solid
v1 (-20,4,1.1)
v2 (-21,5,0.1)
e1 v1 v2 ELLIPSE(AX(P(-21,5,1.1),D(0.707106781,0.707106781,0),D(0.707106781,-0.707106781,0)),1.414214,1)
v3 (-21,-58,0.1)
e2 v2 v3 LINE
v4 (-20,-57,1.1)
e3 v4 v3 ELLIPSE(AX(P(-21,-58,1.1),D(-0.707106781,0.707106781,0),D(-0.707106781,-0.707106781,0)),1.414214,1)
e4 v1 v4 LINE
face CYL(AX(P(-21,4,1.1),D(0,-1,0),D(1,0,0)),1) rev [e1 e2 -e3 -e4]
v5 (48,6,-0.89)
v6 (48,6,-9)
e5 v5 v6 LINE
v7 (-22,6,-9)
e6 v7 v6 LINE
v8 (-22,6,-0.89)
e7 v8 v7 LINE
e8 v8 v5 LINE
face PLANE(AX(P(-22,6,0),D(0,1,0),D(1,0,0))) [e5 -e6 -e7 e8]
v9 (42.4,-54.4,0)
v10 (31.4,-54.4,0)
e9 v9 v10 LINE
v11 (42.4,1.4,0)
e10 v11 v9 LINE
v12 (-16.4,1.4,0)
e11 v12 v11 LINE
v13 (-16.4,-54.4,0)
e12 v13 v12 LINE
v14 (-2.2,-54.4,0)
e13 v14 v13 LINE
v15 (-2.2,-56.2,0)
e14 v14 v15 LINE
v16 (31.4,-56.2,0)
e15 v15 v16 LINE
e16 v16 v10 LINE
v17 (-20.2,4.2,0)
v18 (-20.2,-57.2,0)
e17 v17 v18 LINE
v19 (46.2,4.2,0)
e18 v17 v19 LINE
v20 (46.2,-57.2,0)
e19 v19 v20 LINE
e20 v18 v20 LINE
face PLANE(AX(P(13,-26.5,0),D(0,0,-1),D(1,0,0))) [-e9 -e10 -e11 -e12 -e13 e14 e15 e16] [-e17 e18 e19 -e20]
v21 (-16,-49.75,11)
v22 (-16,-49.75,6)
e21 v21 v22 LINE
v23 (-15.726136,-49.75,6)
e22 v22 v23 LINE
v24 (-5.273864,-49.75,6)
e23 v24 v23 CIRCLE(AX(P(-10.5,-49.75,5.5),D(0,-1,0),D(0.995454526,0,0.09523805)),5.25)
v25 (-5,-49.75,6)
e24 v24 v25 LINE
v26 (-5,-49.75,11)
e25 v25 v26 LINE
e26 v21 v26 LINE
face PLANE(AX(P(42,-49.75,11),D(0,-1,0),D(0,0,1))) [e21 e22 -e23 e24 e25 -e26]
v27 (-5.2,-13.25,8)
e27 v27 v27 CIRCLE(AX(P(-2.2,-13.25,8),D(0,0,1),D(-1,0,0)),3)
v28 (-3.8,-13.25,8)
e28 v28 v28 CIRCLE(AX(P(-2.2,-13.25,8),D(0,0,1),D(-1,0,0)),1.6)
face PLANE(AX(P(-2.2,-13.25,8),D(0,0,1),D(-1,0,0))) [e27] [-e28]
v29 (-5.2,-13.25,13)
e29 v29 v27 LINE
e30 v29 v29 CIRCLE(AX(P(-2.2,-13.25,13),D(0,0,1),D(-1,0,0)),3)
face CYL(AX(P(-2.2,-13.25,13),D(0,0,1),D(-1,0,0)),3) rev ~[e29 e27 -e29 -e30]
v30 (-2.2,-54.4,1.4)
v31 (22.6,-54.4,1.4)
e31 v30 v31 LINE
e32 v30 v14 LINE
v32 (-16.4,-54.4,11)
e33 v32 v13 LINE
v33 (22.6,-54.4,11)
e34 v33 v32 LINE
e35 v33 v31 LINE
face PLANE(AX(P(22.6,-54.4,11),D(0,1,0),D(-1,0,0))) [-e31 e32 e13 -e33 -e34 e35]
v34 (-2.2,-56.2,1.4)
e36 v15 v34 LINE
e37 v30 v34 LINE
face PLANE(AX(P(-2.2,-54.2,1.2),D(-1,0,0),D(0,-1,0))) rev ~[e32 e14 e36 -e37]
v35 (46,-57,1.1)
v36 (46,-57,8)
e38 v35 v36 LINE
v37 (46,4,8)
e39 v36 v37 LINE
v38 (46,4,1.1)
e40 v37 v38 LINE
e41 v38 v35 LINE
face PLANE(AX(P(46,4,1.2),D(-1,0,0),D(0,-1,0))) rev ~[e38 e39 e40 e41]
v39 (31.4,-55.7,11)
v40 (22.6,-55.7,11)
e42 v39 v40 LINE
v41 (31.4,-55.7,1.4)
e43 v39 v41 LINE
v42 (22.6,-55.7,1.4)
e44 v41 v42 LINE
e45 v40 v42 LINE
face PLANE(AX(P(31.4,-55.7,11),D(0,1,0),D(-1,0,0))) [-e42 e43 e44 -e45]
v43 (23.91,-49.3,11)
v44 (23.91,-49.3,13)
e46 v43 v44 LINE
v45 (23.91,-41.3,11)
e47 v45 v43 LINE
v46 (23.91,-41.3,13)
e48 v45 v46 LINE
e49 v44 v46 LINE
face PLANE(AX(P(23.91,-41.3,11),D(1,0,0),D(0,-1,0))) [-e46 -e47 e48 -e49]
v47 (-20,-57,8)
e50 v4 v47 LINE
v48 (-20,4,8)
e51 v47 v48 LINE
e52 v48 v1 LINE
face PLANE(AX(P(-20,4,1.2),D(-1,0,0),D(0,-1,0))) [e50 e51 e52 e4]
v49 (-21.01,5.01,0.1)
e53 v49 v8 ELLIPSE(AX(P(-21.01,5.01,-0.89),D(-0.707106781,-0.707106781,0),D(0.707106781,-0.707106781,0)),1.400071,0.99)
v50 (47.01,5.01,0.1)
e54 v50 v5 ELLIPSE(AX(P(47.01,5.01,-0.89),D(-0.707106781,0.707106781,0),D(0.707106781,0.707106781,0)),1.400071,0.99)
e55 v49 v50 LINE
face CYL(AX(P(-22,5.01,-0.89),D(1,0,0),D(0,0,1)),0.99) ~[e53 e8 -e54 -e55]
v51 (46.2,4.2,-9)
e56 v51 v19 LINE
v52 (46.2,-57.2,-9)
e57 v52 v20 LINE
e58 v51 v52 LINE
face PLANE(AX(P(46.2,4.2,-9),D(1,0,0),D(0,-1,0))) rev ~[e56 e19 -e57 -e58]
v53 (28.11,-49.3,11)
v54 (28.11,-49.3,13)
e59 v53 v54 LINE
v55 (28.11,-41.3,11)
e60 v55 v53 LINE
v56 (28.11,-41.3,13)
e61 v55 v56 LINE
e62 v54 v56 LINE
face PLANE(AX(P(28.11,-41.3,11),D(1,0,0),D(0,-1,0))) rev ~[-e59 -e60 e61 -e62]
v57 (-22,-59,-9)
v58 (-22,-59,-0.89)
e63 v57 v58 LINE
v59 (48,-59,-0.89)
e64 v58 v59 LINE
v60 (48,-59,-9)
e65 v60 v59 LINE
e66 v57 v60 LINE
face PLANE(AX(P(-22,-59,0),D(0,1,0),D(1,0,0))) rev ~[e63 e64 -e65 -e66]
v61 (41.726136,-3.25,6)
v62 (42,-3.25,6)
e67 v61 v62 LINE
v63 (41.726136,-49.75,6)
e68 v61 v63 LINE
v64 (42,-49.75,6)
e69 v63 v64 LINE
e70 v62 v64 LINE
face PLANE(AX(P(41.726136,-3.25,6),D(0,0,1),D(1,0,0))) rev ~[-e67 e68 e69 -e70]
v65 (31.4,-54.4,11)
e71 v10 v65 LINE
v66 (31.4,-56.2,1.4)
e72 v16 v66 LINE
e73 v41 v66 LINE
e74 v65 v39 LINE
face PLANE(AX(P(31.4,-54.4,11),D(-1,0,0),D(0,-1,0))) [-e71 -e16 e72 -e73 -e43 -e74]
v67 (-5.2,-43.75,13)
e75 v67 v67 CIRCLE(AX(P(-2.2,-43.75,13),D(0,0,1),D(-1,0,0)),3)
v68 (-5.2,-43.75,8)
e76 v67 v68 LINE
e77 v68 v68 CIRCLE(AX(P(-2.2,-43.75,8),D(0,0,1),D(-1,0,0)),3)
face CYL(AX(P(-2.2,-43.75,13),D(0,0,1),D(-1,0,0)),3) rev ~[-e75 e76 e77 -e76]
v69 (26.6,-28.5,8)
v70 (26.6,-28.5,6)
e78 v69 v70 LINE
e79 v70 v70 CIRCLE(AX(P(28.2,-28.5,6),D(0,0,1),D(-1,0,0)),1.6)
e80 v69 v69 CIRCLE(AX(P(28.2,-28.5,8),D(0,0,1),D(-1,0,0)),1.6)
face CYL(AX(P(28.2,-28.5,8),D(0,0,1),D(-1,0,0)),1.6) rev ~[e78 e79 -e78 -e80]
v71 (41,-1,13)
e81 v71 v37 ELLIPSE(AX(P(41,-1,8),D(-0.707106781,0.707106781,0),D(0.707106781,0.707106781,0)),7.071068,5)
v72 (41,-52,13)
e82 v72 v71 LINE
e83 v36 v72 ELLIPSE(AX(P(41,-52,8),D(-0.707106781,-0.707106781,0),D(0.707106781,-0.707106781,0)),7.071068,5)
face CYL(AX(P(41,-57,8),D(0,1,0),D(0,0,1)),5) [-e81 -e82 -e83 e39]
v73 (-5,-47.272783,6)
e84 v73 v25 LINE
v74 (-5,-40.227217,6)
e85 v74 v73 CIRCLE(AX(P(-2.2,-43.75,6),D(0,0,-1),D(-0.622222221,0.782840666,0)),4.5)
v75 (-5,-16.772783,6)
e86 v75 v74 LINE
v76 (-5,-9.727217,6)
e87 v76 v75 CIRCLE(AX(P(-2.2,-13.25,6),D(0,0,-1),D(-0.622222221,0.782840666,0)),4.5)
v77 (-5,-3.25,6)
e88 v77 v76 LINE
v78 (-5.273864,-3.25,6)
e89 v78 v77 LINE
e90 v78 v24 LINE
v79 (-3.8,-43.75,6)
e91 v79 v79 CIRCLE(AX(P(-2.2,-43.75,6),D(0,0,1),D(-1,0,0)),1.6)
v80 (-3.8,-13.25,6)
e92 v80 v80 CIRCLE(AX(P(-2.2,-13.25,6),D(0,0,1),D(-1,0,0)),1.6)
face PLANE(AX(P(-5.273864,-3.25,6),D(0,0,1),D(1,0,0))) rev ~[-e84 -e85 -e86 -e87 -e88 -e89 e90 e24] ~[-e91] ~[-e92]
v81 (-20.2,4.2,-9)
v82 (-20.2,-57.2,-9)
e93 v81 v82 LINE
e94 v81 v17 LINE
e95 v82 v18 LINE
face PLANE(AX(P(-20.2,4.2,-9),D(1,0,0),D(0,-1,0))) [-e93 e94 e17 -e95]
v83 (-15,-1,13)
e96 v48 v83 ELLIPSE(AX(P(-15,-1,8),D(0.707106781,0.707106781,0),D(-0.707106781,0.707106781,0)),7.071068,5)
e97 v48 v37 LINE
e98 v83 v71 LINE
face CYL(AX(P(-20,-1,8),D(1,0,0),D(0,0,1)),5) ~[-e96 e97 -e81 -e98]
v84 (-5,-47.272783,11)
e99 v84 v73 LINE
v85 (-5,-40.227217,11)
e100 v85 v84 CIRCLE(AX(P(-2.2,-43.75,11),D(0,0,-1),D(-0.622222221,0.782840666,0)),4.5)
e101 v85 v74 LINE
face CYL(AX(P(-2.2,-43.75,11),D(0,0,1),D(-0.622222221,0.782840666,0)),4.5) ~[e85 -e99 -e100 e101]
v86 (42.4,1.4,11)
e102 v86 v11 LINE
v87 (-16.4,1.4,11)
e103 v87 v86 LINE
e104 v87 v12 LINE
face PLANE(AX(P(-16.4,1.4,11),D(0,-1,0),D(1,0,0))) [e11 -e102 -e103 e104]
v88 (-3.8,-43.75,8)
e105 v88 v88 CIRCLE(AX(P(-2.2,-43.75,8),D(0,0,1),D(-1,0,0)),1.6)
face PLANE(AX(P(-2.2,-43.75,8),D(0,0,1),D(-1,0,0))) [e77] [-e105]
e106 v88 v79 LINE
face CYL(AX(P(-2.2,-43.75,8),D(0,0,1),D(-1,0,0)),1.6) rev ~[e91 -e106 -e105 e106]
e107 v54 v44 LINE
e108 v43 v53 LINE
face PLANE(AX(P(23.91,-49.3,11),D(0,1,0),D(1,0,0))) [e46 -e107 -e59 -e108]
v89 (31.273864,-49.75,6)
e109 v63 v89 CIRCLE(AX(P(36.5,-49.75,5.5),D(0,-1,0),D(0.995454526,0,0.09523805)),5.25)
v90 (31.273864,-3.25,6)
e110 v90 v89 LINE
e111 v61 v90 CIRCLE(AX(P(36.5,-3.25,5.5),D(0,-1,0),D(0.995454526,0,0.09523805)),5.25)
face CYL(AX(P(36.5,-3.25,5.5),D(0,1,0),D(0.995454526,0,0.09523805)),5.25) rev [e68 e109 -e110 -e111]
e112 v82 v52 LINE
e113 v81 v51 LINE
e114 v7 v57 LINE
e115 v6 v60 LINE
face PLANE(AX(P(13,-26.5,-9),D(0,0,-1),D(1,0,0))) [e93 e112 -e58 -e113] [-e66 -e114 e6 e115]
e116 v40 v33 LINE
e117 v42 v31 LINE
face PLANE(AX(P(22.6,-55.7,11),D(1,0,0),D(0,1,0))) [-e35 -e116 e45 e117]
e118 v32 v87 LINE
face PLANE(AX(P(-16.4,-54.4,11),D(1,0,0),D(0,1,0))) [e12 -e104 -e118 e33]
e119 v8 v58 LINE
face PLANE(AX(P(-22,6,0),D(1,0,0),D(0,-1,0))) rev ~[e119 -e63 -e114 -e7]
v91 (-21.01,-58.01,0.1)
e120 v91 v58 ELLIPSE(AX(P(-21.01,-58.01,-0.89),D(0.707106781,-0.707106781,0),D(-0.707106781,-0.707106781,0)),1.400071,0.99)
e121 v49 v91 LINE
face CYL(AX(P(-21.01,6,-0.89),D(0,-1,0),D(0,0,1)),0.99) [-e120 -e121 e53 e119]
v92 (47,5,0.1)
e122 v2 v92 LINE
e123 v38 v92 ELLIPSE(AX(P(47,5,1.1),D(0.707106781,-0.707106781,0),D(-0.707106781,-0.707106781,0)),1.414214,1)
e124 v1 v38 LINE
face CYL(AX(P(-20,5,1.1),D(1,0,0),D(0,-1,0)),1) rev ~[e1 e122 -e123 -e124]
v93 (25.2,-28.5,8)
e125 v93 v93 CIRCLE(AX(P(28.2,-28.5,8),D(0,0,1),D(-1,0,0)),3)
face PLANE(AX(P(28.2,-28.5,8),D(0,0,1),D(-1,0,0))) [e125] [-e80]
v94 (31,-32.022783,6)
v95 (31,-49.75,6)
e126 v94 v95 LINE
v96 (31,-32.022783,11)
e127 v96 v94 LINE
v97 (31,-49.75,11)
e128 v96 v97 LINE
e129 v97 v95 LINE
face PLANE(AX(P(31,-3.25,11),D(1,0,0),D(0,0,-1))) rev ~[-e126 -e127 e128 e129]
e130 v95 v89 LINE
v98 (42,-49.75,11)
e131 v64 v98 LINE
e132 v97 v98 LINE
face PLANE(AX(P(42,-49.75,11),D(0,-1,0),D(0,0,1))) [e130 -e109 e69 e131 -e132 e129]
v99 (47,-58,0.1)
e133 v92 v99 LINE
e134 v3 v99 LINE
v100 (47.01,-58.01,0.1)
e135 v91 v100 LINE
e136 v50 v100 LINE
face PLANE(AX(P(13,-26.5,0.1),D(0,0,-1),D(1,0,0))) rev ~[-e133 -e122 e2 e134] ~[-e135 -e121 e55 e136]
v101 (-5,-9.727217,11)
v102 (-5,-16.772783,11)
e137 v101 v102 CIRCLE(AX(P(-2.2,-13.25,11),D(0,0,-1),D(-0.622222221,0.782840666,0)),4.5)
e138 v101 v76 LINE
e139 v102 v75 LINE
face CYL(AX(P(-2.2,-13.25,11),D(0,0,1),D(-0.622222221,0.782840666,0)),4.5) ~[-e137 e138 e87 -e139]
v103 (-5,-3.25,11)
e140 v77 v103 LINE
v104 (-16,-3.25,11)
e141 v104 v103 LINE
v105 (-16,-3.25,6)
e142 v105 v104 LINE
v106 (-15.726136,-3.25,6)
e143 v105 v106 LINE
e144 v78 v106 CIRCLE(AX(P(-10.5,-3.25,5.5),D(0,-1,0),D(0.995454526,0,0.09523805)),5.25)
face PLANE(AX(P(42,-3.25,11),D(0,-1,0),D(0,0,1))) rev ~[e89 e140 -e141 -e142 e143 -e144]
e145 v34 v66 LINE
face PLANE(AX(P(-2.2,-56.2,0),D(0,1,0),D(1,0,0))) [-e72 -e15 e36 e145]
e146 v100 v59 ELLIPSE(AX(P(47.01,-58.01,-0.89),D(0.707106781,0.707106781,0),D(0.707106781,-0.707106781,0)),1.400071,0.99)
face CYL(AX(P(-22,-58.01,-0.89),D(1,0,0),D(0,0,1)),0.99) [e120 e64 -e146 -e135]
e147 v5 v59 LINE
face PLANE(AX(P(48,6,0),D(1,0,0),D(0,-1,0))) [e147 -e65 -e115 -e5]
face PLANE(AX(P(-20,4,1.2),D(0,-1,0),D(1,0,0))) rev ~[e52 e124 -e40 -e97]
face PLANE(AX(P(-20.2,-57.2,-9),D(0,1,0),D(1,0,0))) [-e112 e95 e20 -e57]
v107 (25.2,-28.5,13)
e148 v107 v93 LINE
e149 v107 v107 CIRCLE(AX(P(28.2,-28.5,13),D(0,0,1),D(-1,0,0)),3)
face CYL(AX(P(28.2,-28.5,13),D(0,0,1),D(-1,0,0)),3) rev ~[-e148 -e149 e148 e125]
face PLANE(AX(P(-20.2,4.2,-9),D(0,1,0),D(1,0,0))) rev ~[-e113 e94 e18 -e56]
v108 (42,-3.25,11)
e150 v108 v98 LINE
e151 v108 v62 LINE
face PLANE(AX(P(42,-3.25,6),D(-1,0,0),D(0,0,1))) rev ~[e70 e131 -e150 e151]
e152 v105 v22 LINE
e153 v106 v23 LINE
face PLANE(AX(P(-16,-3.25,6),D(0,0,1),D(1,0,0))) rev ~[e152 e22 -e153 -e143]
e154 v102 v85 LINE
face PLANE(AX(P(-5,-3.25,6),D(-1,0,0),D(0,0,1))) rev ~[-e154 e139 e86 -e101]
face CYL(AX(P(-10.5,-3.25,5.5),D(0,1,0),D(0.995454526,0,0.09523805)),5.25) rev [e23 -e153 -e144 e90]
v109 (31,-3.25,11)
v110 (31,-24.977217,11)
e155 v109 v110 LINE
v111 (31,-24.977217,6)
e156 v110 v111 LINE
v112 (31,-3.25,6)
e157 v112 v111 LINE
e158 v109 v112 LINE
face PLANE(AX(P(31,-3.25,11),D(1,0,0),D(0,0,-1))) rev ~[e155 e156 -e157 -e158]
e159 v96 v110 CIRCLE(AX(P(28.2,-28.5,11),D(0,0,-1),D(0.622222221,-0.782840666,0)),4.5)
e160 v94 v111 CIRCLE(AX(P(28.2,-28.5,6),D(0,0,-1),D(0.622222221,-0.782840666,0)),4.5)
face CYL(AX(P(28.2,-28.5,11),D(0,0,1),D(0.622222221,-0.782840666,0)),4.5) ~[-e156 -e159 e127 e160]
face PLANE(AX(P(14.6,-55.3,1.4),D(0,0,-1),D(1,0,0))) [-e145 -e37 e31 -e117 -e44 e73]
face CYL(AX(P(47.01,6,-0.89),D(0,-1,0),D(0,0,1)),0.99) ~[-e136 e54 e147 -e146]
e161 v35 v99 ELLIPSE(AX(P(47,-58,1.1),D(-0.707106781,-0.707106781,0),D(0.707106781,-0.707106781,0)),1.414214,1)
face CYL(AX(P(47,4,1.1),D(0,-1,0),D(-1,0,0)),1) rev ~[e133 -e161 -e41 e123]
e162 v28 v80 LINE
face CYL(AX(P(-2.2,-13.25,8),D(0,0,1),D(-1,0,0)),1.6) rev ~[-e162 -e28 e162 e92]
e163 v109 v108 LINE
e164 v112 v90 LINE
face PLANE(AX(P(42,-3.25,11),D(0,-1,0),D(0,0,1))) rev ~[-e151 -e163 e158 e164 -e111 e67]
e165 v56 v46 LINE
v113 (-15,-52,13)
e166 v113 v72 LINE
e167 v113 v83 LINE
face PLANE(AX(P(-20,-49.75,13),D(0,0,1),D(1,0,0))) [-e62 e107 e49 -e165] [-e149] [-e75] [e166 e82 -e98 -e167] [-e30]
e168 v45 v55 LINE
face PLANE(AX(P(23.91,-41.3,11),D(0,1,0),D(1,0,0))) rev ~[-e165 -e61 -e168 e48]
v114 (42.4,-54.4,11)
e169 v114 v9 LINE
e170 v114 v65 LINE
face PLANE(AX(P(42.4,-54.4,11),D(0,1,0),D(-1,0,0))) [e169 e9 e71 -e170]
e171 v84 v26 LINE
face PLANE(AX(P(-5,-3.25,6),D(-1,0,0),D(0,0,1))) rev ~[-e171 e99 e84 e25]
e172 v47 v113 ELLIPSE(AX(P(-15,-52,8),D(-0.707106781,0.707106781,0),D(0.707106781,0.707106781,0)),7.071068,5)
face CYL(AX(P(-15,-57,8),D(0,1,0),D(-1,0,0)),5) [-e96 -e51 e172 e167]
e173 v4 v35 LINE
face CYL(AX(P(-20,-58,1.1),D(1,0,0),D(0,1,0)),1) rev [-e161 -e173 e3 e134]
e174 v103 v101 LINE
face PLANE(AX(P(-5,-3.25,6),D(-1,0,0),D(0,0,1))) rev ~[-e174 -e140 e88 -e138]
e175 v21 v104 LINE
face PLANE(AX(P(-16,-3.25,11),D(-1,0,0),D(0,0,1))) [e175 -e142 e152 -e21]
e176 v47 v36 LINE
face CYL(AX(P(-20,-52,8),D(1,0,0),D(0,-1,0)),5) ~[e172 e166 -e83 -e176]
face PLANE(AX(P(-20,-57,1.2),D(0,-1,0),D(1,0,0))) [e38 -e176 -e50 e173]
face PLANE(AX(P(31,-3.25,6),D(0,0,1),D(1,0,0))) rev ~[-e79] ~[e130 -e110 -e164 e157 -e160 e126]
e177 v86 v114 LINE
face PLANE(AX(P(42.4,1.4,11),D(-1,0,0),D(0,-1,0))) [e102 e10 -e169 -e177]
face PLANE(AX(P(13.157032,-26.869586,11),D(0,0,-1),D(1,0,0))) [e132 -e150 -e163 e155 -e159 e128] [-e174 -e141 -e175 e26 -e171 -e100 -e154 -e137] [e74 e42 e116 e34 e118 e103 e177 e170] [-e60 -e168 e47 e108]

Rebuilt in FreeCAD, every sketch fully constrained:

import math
import FreeCAD as App
import Part
import Sketcher

V = App.Vector


def edges_at(feature, points):
    """Names of the edges that pass closest to the given points."""
    edges = feature.Shape.Edges
    near = lambda p: min(range(len(edges)), key=lambda i: edges[i].distToShape(Part.Vertex(*p))[0])
    return sorted({f"Edge{near(p) + 1}" for p in points})


def add_polygon(sketch, points):
    """Adds a closed chain of lines whose ends are joined by coincident constraints."""
    first, n = sketch.GeometryCount, len(points)
    for a, b in zip(points, points[1:] + points[:1]):
        sketch.addGeometry(Part.LineSegment(App.Vector(*a, 0), App.Vector(*b, 0)), False)
    for i in range(n):
        sketch.addConstraint(Sketcher.Constraint("Coincident", first + i, 2, first + (i + 1) % n, 1))

doc = App.newDocument("Part")
body = doc.addObject("PartDesign::Body", "Body")

# Sketch on XZ plane
sketch1 = body.newObject("Sketcher::SketchObject", "Sketch")
sketch1.AttachmentSupport = (doc.getObject("XZ_Plane"), [""])
sketch1.MapMode = "FlatFace"
sketch1.AttachmentOffset = App.Placement(V(0, 0, 3.25), App.Rotation())
sketch1.addGeometry(Part.LineSegment(V(-5, 11, 0), V(-16, 11, 0)), False)
sketch1.addGeometry(Part.LineSegment(V(-16, 11, 0), V(-16, 6, 0)), False)
sketch1.addGeometry(Part.LineSegment(V(-16, 6, 0), V(-15.73, 6, 0)), False)
sketch1.addGeometry(Part.ArcOfCircle(Part.Circle(V(-10.5, 5.5, 0), V(0, 0, 1), 5.25), math.radians(5), math.radians(175)), False)
sketch1.addGeometry(Part.LineSegment(V(-5.27, 6, 0), V(-5, 6, 0)), False)
sketch1.addGeometry(Part.LineSegment(V(-5, 6, 0), V(-5, 11, 0)), False)
sketch1.addConstraint(Sketcher.Constraint("Coincident", 0, 2, 1, 1))
sketch1.addConstraint(Sketcher.Constraint("Coincident", 1, 2, 2, 1))
sketch1.addConstraint(Sketcher.Constraint("Coincident", 2, 2, 3, 2))
sketch1.addConstraint(Sketcher.Constraint("Coincident", 3, 1, 4, 1))
sketch1.addConstraint(Sketcher.Constraint("Coincident", 4, 2, 5, 1))
sketch1.addConstraint(Sketcher.Constraint("Coincident", 5, 2, 0, 1))
sketch1.addConstraint(Sketcher.Constraint("Horizontal", 0))
sketch1.addConstraint(Sketcher.Constraint("Vertical", 1))
sketch1.addConstraint(Sketcher.Constraint("Horizontal", 2))
sketch1.addConstraint(Sketcher.Constraint("Horizontal", 4))
sketch1.addConstraint(Sketcher.Constraint("Vertical", 5))
sketch1.addConstraint(Sketcher.Constraint("Horizontal", 2, 2, 3, 1))
sketch1.addConstraint(Sketcher.Constraint("Equal", 2, 4))
sketch1.addConstraint(Sketcher.Constraint("DistanceX", 0, 2, 0, 1, 11.0))
sketch1.addConstraint(Sketcher.Constraint("DistanceY", 1, 2, 1, 1, 5.0))
sketch1.addConstraint(Sketcher.Constraint("Radius", 3, 5.25))
sketch1.addConstraint(Sketcher.Constraint("DistanceX", 0, 2, -1, 1, 16.0))
sketch1.addConstraint(Sketcher.Constraint("DistanceY", -1, 1, 0, 2, 11.0))
sketch1.addConstraint(Sketcher.Constraint("DistanceY", -1, 1, 3, 3, 5.5))
pad1 = body.newObject("PartDesign::Pad", "Pad")
pad1.Profile = sketch1
pad1.Length = 46.5

# Sketch on XZ plane
sketch2 = body.newObject("Sketcher::SketchObject", "Sketch001")
sketch2.AttachmentSupport = (doc.getObject("XZ_Plane"), [""])
sketch2.MapMode = "FlatFace"
sketch2.AttachmentOffset = App.Placement(V(0, 0, 3.25), App.Rotation())
sketch2.addGeometry(Part.LineSegment(V(31, 11, 0), V(31, 6, 0)), False)
sketch2.addGeometry(Part.LineSegment(V(31, 6, 0), V(31.27, 6, 0)), False)
sketch2.addGeometry(Part.ArcOfCircle(Part.Circle(V(36.5, 5.5, 0), V(0, 0, 1), 5.25), math.radians(5), math.radians(175)), False)
sketch2.addGeometry(Part.LineSegment(V(41.73, 6, 0), V(42, 6, 0)), False)
sketch2.addGeometry(Part.LineSegment(V(42, 6, 0), V(42, 13, 0)), False)
sketch2.addGeometry(Part.LineSegment(V(42, 13, 0), V(-16, 13, 0)), False)
sketch2.addGeometry(Part.LineSegment(V(-16, 13, 0), V(-16, 11, 0)), False)
sketch2.addGeometry(Part.LineSegment(V(-16, 11, 0), V(31, 11, 0)), False)
sketch2.addConstraint(Sketcher.Constraint("Coincident", 0, 2, 1, 1))
sketch2.addConstraint(Sketcher.Constraint("Coincident", 1, 2, 2, 2))
sketch2.addConstraint(Sketcher.Constraint("Coincident", 2, 1, 3, 1))
sketch2.addConstraint(Sketcher.Constraint("Coincident", 3, 2, 4, 1))
sketch2.addConstraint(Sketcher.Constraint("Coincident", 4, 2, 5, 1))
sketch2.addConstraint(Sketcher.Constraint("Coincident", 5, 2, 6, 1))
sketch2.addConstraint(Sketcher.Constraint("Coincident", 6, 2, 7, 1))
sketch2.addConstraint(Sketcher.Constraint("Coincident", 7, 2, 0, 1))
sketch2.addConstraint(Sketcher.Constraint("Vertical", 0))
sketch2.addConstraint(Sketcher.Constraint("Horizontal", 1))
sketch2.addConstraint(Sketcher.Constraint("Horizontal", 3))
sketch2.addConstraint(Sketcher.Constraint("Vertical", 4))
sketch2.addConstraint(Sketcher.Constraint("Horizontal", 5))
sketch2.addConstraint(Sketcher.Constraint("Vertical", 6))
sketch2.addConstraint(Sketcher.Constraint("Horizontal", 7))
sketch2.addConstraint(Sketcher.Constraint("Horizontal", 1, 2, 2, 1))
sketch2.addConstraint(Sketcher.Constraint("Equal", 1, 3))
sketch2.addConstraint(Sketcher.Constraint("DistanceX", 5, 2, 5, 1, 58.0))
sketch2.addConstraint(Sketcher.Constraint("DistanceX", 7, 1, 7, 2, 47.0))
sketch2.addConstraint(Sketcher.Constraint("DistanceY", 0, 2, 0, 1, 5.0))
sketch2.addConstraint(Sketcher.Constraint("DistanceY", 4, 1, 4, 2, 7.0))
sketch2.addConstraint(Sketcher.Constraint("Radius", 2, 5.25))
sketch2.addConstraint(Sketcher.Constraint("DistanceX", -1, 1, 0, 2, 31.0))
sketch2.addConstraint(Sketcher.Constraint("DistanceY", -1, 1, 0, 2, 6.0))
sketch2.addConstraint(Sketcher.Constraint("DistanceY", -1, 1, 2, 3, 5.5))
pad2 = body.newObject("PartDesign::Pad", "Pad001")
pad2.Profile = sketch2
pad2.Length = 46.5

# Sketch on YZ plane
sketch3 = body.newObject("Sketcher::SketchObject", "Sketch002")
sketch3.AttachmentSupport = (doc.getObject("YZ_Plane"), [""])
sketch3.MapMode = "FlatFace"
sketch3.AttachmentOffset = App.Placement(V(0, 0, 42), App.Rotation())
add_polygon(sketch3, [(-49.8, 11), (-3.2, 11), (-3.2, 13), (-49.8, 13)])  # lines 0-3
sketch3.addConstraint(Sketcher.Constraint("Horizontal", 0))
sketch3.addConstraint(Sketcher.Constraint("Vertical", 1))
sketch3.addConstraint(Sketcher.Constraint("Horizontal", 2))
sketch3.addConstraint(Sketcher.Constraint("Vertical", 3))
sketch3.addConstraint(Sketcher.Constraint("DistanceY", 1, 1, 1, 2, 2.0))
sketch3.addConstraint(Sketcher.Constraint("DistanceX", 0, 1, 0, 2, 46.5))
sketch3.addConstraint(Sketcher.Constraint("DistanceY", -1, 1, 0, 2, 11.0))
sketch3.addConstraint(Sketcher.Constraint("DistanceX", 0, 2, -1, 1, 3.25))
pad3 = body.newObject("PartDesign::Pad", "Pad002")
pad3.Profile = sketch3
pad3.Length = 62
pad3.Reversed = True

# Sketch on YZ plane
sketch4 = body.newObject("Sketcher::SketchObject", "Sketch003")
sketch4.AttachmentSupport = (doc.getObject("YZ_Plane"), [""])
sketch4.MapMode = "FlatFace"
sketch4.AttachmentOffset = App.Placement(V(0, 0, 42), App.Rotation())
add_polygon(sketch4, [(-49.8, 11), (-3.2, 11), (-3.2, 13), (-49.8, 13)])  # lines 0-3
sketch4.addConstraint(Sketcher.Constraint("Horizontal", 0))
sketch4.addConstraint(Sketcher.Constraint("Vertical", 1))
sketch4.addConstraint(Sketcher.Constraint("Horizontal", 2))
sketch4.addConstraint(Sketcher.Constraint("Vertical", 3))
sketch4.addConstraint(Sketcher.Constraint("DistanceY", 1, 1, 1, 2, 2.0))
sketch4.addConstraint(Sketcher.Constraint("DistanceX", 0, 1, 0, 2, 46.5))
sketch4.addConstraint(Sketcher.Constraint("DistanceY", -1, 1, 0, 2, 11.0))
sketch4.addConstraint(Sketcher.Constraint("DistanceX", 0, 2, -1, 1, 3.25))
pad4 = body.newObject("PartDesign::Pad", "Pad003")
pad4.Profile = sketch4
pad4.Length = 4

# Sketch on XZ plane
sketch5 = body.newObject("Sketcher::SketchObject", "Sketch004")
sketch5.AttachmentSupport = (doc.getObject("XZ_Plane"), [""])
sketch5.MapMode = "FlatFace"
sketch5.AttachmentOffset = App.Placement(V(0, 0, 3.25), App.Rotation())
add_polygon(sketch5, [(-20, 11), (-20, 13), (46, 13), (46, 11)])  # lines 0-3
sketch5.addConstraint(Sketcher.Constraint("Vertical", 0))
sketch5.addConstraint(Sketcher.Constraint("Horizontal", 1))
sketch5.addConstraint(Sketcher.Constraint("Vertical", 2))
sketch5.addConstraint(Sketcher.Constraint("Horizontal", 3))
sketch5.addConstraint(Sketcher.Constraint("DistanceX", 1, 1, 1, 2, 66.0))
sketch5.addConstraint(Sketcher.Constraint("DistanceY", 0, 1, 0, 2, 2.0))
sketch5.addConstraint(Sketcher.Constraint("DistanceX", 0, 2, -1, 1, 20.0))
sketch5.addConstraint(Sketcher.Constraint("DistanceY", -1, 1, 0, 2, 13.0))
pad5 = body.newObject("PartDesign::Pad", "Pad004")
pad5.Profile = sketch5
pad5.Length = 7.25
pad5.Reversed = True

# Sketch on XZ plane
sketch6 = body.newObject("Sketcher::SketchObject", "Sketch005")
sketch6.AttachmentSupport = (doc.getObject("XZ_Plane"), [""])
sketch6.MapMode = "FlatFace"
sketch6.AttachmentOffset = App.Placement(V(0, 0, 49.75), App.Rotation())
add_polygon(sketch6, [(-20, 13), (-20, 11), (46, 11), (46, 13)])  # lines 0-3
sketch6.addConstraint(Sketcher.Constraint("Vertical", 0))
sketch6.addConstraint(Sketcher.Constraint("Horizontal", 1))
sketch6.addConstraint(Sketcher.Constraint("Vertical", 2))
sketch6.addConstraint(Sketcher.Constraint("Horizontal", 3))
sketch6.addConstraint(Sketcher.Constraint("DistanceX", 1, 1, 1, 2, 66.0))
sketch6.addConstraint(Sketcher.Constraint("DistanceY", 0, 2, 0, 1, 2.0))
sketch6.addConstraint(Sketcher.Constraint("DistanceX", 0, 2, -1, 1, 20.0))
sketch6.addConstraint(Sketcher.Constraint("DistanceY", -1, 1, 0, 2, 11.0))
pad6 = body.newObject("PartDesign::Pad", "Pad005")
pad6.Profile = sketch6
pad6.Length = 7.25

# Sketch on XY plane
sketch7 = body.newObject("Sketcher::SketchObject", "Sketch006")
sketch7.AttachmentSupport = (doc.getObject("XY_Plane"), [""])
sketch7.MapMode = "FlatFace"
sketch7.AttachmentOffset = App.Placement(V(0, 0, 11), App.Rotation())
add_polygon(sketch7, [(-20, -57), (-20, 4), (46, 4), (46, -57)])  # lines 0-3
add_polygon(sketch7, [(42.2, -54.2), (42.2, 1.2), (-16.2, 1.2), (-16.2, -54.2), (22.8, -54.2), (22.8, -55.5), (31.2, -55.5), (31.2, -54.2)])  # lines 4-11
sketch7.addConstraint(Sketcher.Constraint("Vertical", 0))
sketch7.addConstraint(Sketcher.Constraint("Horizontal", 1))
sketch7.addConstraint(Sketcher.Constraint("Vertical", 2))
sketch7.addConstraint(Sketcher.Constraint("Horizontal", 3))
sketch7.addConstraint(Sketcher.Constraint("Vertical", 4))
sketch7.addConstraint(Sketcher.Constraint("Horizontal", 5))
sketch7.addConstraint(Sketcher.Constraint("Vertical", 6))
sketch7.addConstraint(Sketcher.Constraint("Horizontal", 7))
sketch7.addConstraint(Sketcher.Constraint("Vertical", 8))
sketch7.addConstraint(Sketcher.Constraint("Horizontal", 9))
sketch7.addConstraint(Sketcher.Constraint("Vertical", 10))
sketch7.addConstraint(Sketcher.Constraint("Horizontal", 11))
sketch7.addConstraint(Sketcher.Constraint("Horizontal", 7, 2, 10, 2))
sketch7.addConstraint(Sketcher.Constraint("DistanceX", 1, 1, 1, 2, 66.0))
sketch7.addConstraint(Sketcher.Constraint("DistanceX", 7, 1, 7, 2, 39.0))
sketch7.addConstraint(Sketcher.Constraint("DistanceX", 11, 1, 11, 2, 11.0))
sketch7.addConstraint(Sketcher.Constraint("DistanceY", 0, 1, 0, 2, 61.0))
sketch7.addConstraint(Sketcher.Constraint("DistanceX", 5, 2, 5, 1, 58.4))
sketch7.addConstraint(Sketcher.Constraint("DistanceY", 4, 1, 4, 2, 55.4))
sketch7.addConstraint(Sketcher.Constraint("DistanceY", 8, 2, 8, 1, 1.3))
sketch7.addConstraint(Sketcher.Constraint("DistanceX", 0, 2, -1, 1, 20.0))
sketch7.addConstraint(Sketcher.Constraint("DistanceY", -1, 1, 0, 2, 4.0))
sketch7.addConstraint(Sketcher.Constraint("DistanceX", -1, 1, 4, 2, 42.2))
sketch7.addConstraint(Sketcher.Constraint("DistanceY", -1, 1, 4, 2, 1.2))
pad7 = body.newObject("PartDesign::Pad", "Pad006")
pad7.Profile = sketch7
pad7.Length = 9.8
pad7.Reversed = True

# Sketch on XY plane
sketch8 = body.newObject("Sketcher::SketchObject", "Sketch007")
sketch8.AttachmentSupport = (doc.getObject("XY_Plane"), [""])
sketch8.MapMode = "FlatFace"
sketch8.AttachmentOffset = App.Placement(V(0, 0, 1.2), App.Rotation())
add_polygon(sketch8, [(-20, -57), (-20, 4), (46, 4), (46, -57)])  # lines 0-3
add_polygon(sketch8, [(-2.2, -54.2), (-2.2, -56.2), (31.2, -56.2), (31.2, -54.2), (42.2, -54.2), (42.2, 1.2), (-16.2, 1.2), (-16.2, -54.2)])  # lines 4-11
sketch8.addConstraint(Sketcher.Constraint("Vertical", 0))
sketch8.addConstraint(Sketcher.Constraint("Horizontal", 1))
sketch8.addConstraint(Sketcher.Constraint("Vertical", 2))
sketch8.addConstraint(Sketcher.Constraint("Horizontal", 3))
sketch8.addConstraint(Sketcher.Constraint("Vertical", 4))
sketch8.addConstraint(Sketcher.Constraint("Horizontal", 5))
sketch8.addConstraint(Sketcher.Constraint("Vertical", 6))
sketch8.addConstraint(Sketcher.Constraint("Horizontal", 7))
sketch8.addConstraint(Sketcher.Constraint("Vertical", 8))
sketch8.addConstraint(Sketcher.Constraint("Horizontal", 9))
sketch8.addConstraint(Sketcher.Constraint("Vertical", 10))
sketch8.addConstraint(Sketcher.Constraint("Horizontal", 11))
sketch8.addConstraint(Sketcher.Constraint("Horizontal", 7, 2, 10, 2))
sketch8.addConstraint(Sketcher.Constraint("DistanceX", 1, 1, 1, 2, 66.0))
sketch8.addConstraint(Sketcher.Constraint("DistanceX", 7, 1, 7, 2, 11.0))
sketch8.addConstraint(Sketcher.Constraint("DistanceX", 11, 1, 11, 2, 14.0))
sketch8.addConstraint(Sketcher.Constraint("DistanceY", 0, 1, 0, 2, 61.0))
sketch8.addConstraint(Sketcher.Constraint("DistanceY", 4, 2, 4, 1, 2.0))
sketch8.addConstraint(Sketcher.Constraint("DistanceX", 5, 1, 5, 2, 33.4))
sketch8.addConstraint(Sketcher.Constraint("DistanceY", 8, 1, 8, 2, 55.4))
sketch8.addConstraint(Sketcher.Constraint("DistanceX", 0, 2, -1, 1, 20.0))
sketch8.addConstraint(Sketcher.Constraint("DistanceY", -1, 1, 0, 2, 4.0))
sketch8.addConstraint(Sketcher.Constraint("DistanceX", 4, 2, -1, 1, 2.2))
sketch8.addConstraint(Sketcher.Constraint("DistanceY", 4, 2, -1, 1, 56.2))
pad8 = body.newObject("PartDesign::Pad", "Pad007")
pad8.Profile = sketch8
pad8.Length = 1.2
pad8.Reversed = True

# Sketch on XY plane
sketch9 = body.newObject("Sketcher::SketchObject", "Sketch008")
sketch9.AttachmentSupport = (doc.getObject("XY_Plane"), [""])
sketch9.MapMode = "FlatFace"
sketch9.AttachmentOffset = App.Placement(V(0, 0, 11), App.Rotation())
sketch9.addGeometry(Part.ArcOfCircle(Part.Circle(V(-2.2, -43.8, 0), V(0, 0, 1), 4.5), math.radians(-128), math.radians(128)), False)
sketch9.addGeometry(Part.LineSegment(V(-5, -47.3, 0), V(-5, -40.2, 0)), False)
sketch9.addGeometry(Part.ArcOfCircle(Part.Circle(V(-2.2, -13.2, 0), V(0, 0, 1), 4.5), math.radians(-128), math.radians(128)), False)
sketch9.addGeometry(Part.LineSegment(V(-5, -16.8, 0), V(-5, -9.7, 0)), False)
sketch9.addGeometry(Part.ArcOfCircle(Part.Circle(V(28.2, -28.5, 0), V(0, 0, 1), 4.5), math.radians(52), math.radians(308)), False)
sketch9.addGeometry(Part.LineSegment(V(31, -25, 0), V(31, -32, 0)), False)
sketch9.addConstraint(Sketcher.Constraint("Coincident", 0, 1, 1, 1))
sketch9.addConstraint(Sketcher.Constraint("Coincident", 1, 2, 0, 2))
sketch9.addConstraint(Sketcher.Constraint("Coincident", 2, 1, 3, 1))
sketch9.addConstraint(Sketcher.Constraint("Coincident", 3, 2, 2, 2))
sketch9.addConstraint(Sketcher.Constraint("Coincident", 4, 1, 5, 1))
sketch9.addConstraint(Sketcher.Constraint("Coincident", 5, 2, 4, 2))
sketch9.addConstraint(Sketcher.Constraint("Vertical", 1))
sketch9.addConstraint(Sketcher.Constraint("Vertical", 3))
sketch9.addConstraint(Sketcher.Constraint("Vertical", 5))
sketch9.addConstraint(Sketcher.Constraint("Equal", 0, 2))
sketch9.addConstraint(Sketcher.Constraint("Equal", 2, 4))
sketch9.addConstraint(Sketcher.Constraint("Vertical", 0, 3, 2, 3))
sketch9.addConstraint(Sketcher.Constraint("Vertical", 1, 2, 2, 1))
sketch9.addConstraint(Sketcher.Constraint("Equal", 3, 5))
sketch9.addConstraint(Sketcher.Constraint("Radius", 0, 4.5))
sketch9.addConstraint(Sketcher.Constraint("DistanceX", 0, 1, -1, 1, 5.0))
sketch9.addConstraint(Sketcher.Constraint("DistanceX", -1, 1, 4, 1, 31.0))
sketch9.addConstraint(Sketcher.Constraint("DistanceX", 0, 3, -1, 1, 2.2))
sketch9.addConstraint(Sketcher.Constraint("DistanceY", 4, 3, -1, 1, 28.5))
sketch9.addConstraint(Sketcher.Constraint("DistanceY", 0, 3, 2, 3, 30.5))
sketch9.addConstraint(Sketcher.Constraint("DistanceY", 0, 3, -1, 1, 43.75))
pad9 = body.newObject("PartDesign::Pad", "Pad008")
pad9.Profile = sketch9
pad9.Length = 5
pad9.Reversed = True

# Sketch on XY plane
sketch10 = body.newObject("Sketcher::SketchObject", "Sketch009")
sketch10.AttachmentSupport = (doc.getObject("XY_Plane"), [""])
sketch10.MapMode = "FlatFace"
sketch10.AttachmentOffset = App.Placement(V(0, 0, 13), App.Rotation())
sketch10.addGeometry(Part.Circle(V(-2.2, -43.8, 0), V(0, 0, 1), 2.8), False)
sketch10.addGeometry(Part.Circle(V(-2.2, -13.2, 0), V(0, 0, 1), 2.8), False)
sketch10.addGeometry(Part.Circle(V(28.2, -28.5, 0), V(0, 0, 1), 2.8), False)
sketch10.addConstraint(Sketcher.Constraint("Equal", 0, 1))
sketch10.addConstraint(Sketcher.Constraint("Equal", 1, 2))
sketch10.addConstraint(Sketcher.Constraint("Vertical", 0, 3, 1, 3))
sketch10.addConstraint(Sketcher.Constraint("Diameter", 0, 5.6))
sketch10.addConstraint(Sketcher.Constraint("DistanceX", 0, 3, -1, 1, 2.2))
sketch10.addConstraint(Sketcher.Constraint("DistanceX", -1, 1, 2, 3, 28.2))
sketch10.addConstraint(Sketcher.Constraint("DistanceY", 2, 3, -1, 1, 28.5))
sketch10.addConstraint(Sketcher.Constraint("DistanceY", 0, 3, 1, 3, 30.5))
sketch10.addConstraint(Sketcher.Constraint("DistanceY", 0, 3, -1, 1, 43.75))
pocket1 = body.newObject("PartDesign::Pocket", "Pocket")
pocket1.Profile = sketch10
pocket1.Length = 5

# Sketch on XY plane
sketch11 = body.newObject("Sketcher::SketchObject", "Sketch010")
sketch11.AttachmentSupport = (doc.getObject("XY_Plane"), [""])
sketch11.MapMode = "FlatFace"
sketch11.AttachmentOffset = App.Placement(V(0, 0, 13), App.Rotation())
sketch11.addGeometry(Part.Circle(V(28.2, -28.5, 0), V(0, 0, 1), 1.5), False)
sketch11.addGeometry(Part.Circle(V(-2.2, -13.2, 0), V(0, 0, 1), 1.5), False)
sketch11.addGeometry(Part.Circle(V(-2.2, -43.8, 0), V(0, 0, 1), 1.5), False)
sketch11.addConstraint(Sketcher.Constraint("Equal", 0, 1))
sketch11.addConstraint(Sketcher.Constraint("Equal", 1, 2))
sketch11.addConstraint(Sketcher.Constraint("Vertical", 1, 3, 2, 3))
sketch11.addConstraint(Sketcher.Constraint("Diameter", 0, 3.0))
sketch11.addConstraint(Sketcher.Constraint("DistanceX", -1, 1, 0, 3, 28.2))
sketch11.addConstraint(Sketcher.Constraint("DistanceY", 0, 3, -1, 1, 28.5))
sketch11.addConstraint(Sketcher.Constraint("DistanceX", 1, 3, -1, 1, 2.2))
sketch11.addConstraint(Sketcher.Constraint("DistanceY", 2, 3, 1, 3, 30.5))
sketch11.addConstraint(Sketcher.Constraint("DistanceY", 1, 3, -1, 1, 13.25))
pocket2 = body.newObject("PartDesign::Pocket", "Pocket001")
pocket2.Profile = sketch11
pocket2.Length = 8

# Sketch on XY plane
sketch12 = body.newObject("Sketcher::SketchObject", "Sketch011")
sketch12.AttachmentSupport = (doc.getObject("XY_Plane"), [""])
sketch12.MapMode = "FlatFace"
sketch12.AttachmentOffset = App.Placement(V(0, 0, 11), App.Rotation())
add_polygon(sketch12, [(24.4, -48.8), (24.4, -41.8), (27.6, -41.8), (27.6, -48.8)])  # lines 0-3
sketch12.addConstraint(Sketcher.Constraint("Vertical", 0))
sketch12.addConstraint(Sketcher.Constraint("Horizontal", 1))
sketch12.addConstraint(Sketcher.Constraint("Vertical", 2))
sketch12.addConstraint(Sketcher.Constraint("Horizontal", 3))
sketch12.addConstraint(Sketcher.Constraint("DistanceY", 0, 1, 0, 2, 7.0))
sketch12.addConstraint(Sketcher.Constraint("DistanceX", 1, 1, 1, 2, 3.2))
sketch12.addConstraint(Sketcher.Constraint("DistanceY", 0, 2, -1, 1, 41.8))
sketch12.addConstraint(Sketcher.Constraint("DistanceX", -1, 1, 0, 2, 24.41))
pocket3 = body.newObject("PartDesign::Pocket", "Pocket002")
pocket3.Profile = sketch12
pocket3.Length = 5
pocket3.Reversed = True
doc.recompute()

fillet = body.newObject("PartDesign::Fillet", "Fillet")
fillet.Base = (pocket3, edges_at(pocket3, [
    (-20, -26.5, 13),
    (-20, -26.5, 13),
    (13, -57, 13),
    (46, -26.5, 13),
    (46, -26.5, 13),
    (46, -26.5, 13),
    (13, 4, 13),
    (-20, -26.5, 13),
]))
fillet.Radius = 5

# Sketch on XY plane
sketch13 = body.newObject("Sketcher::SketchObject", "Sketch012")
sketch13.AttachmentSupport = (doc.getObject("XY_Plane"), [""])
sketch13.MapMode = "FlatFace"
sketch13.AttachmentOffset = App.Placement(V(0, 0, 11), App.Rotation())
add_polygon(sketch13, [(22.6, -54.4), (-16.4, -54.4), (-16.4, 1.4), (42.4, 1.4), (42.4, -54.4), (31.4, -54.4), (31.4, -55.7), (22.6, -55.7)])  # lines 0-7
add_polygon(sketch13, [(-16.2, 1.2), (-16.2, -54.2), (22.8, -54.2), (22.8, -55.5), (31.2, -55.5), (31.2, -54.2), (42.2, -54.2), (42.2, 1.2)])  # lines 8-15
sketch13.addConstraint(Sketcher.Constraint("Horizontal", 0))
sketch13.addConstraint(Sketcher.Constraint("Vertical", 1))
sketch13.addConstraint(Sketcher.Constraint("Horizontal", 2))
sketch13.addConstraint(Sketcher.Constraint("Vertical", 3))
sketch13.addConstraint(Sketcher.Constraint("Horizontal", 4))
sketch13.addConstraint(Sketcher.Constraint("Vertical", 5))
sketch13.addConstraint(Sketcher.Constraint("Horizontal", 6))
sketch13.addConstraint(Sketcher.Constraint("Vertical", 7))
sketch13.addConstraint(Sketcher.Constraint("Vertical", 8))
sketch13.addConstraint(Sketcher.Constraint("Horizontal", 9))
sketch13.addConstraint(Sketcher.Constraint("Vertical", 10))
sketch13.addConstraint(Sketcher.Constraint("Horizontal", 11))
sketch13.addConstraint(Sketcher.Constraint("Vertical", 12))
sketch13.addConstraint(Sketcher.Constraint("Horizontal", 13))
sketch13.addConstraint(Sketcher.Constraint("Vertical", 14))
sketch13.addConstraint(Sketcher.Constraint("Horizontal", 15))
sketch13.addConstraint(Sketcher.Constraint("Horizontal", 0, 2, 3, 2))
sketch13.addConstraint(Sketcher.Constraint("Horizontal", 9, 2, 12, 2))
sketch13.addConstraint(Sketcher.Constraint("Equal", 0, 9))
sketch13.addConstraint(Sketcher.Constraint("Equal", 4, 13))
sketch13.addConstraint(Sketcher.Constraint("Equal", 7, 10))
sketch13.addConstraint(Sketcher.Constraint("DistanceX", 0, 2, 0, 1, 39.0))
sketch13.addConstraint(Sketcher.Constraint("DistanceX", 4, 2, 4, 1, 11.0))
sketch13.addConstraint(Sketcher.Constraint("DistanceX", 2, 1, 2, 2, 58.8))
sketch13.addConstraint(Sketcher.Constraint("DistanceX", 11, 1, 11, 2, 8.4))
sketch13.addConstraint(Sketcher.Constraint("DistanceY", 1, 1, 1, 2, 55.8))
sketch13.addConstraint(Sketcher.Constraint("DistanceY", 5, 2, 5, 1, 1.3))
sketch13.addConstraint(Sketcher.Constraint("DistanceY", 8, 2, 8, 1, 55.4))
sketch13.addConstraint(Sketcher.Constraint("DistanceX", 0, 2, -1, 1, 16.4))
sketch13.addConstraint(Sketcher.Constraint("DistanceY", 0, 2, -1, 1, 54.4))
sketch13.addConstraint(Sketcher.Constraint("DistanceX", 8, 2, -1, 1, 16.2))
sketch13.addConstraint(Sketcher.Constraint("DistanceY", 8, 2, -1, 1, 54.2))
pocket4 = body.newObject("PartDesign::Pocket", "Pocket003")
pocket4.Profile = sketch13
pocket4.Length = 11

# Sketch on XY plane
sketch14 = body.newObject("Sketcher::SketchObject", "Sketch013")
sketch14.AttachmentSupport = (doc.getObject("XY_Plane"), [""])
sketch14.MapMode = "FlatFace"
add_polygon(sketch14, [(-2.2, -56.2), (-2.2, -54.4), (31.4, -54.4), (31.4, -56.2)])  # lines 0-3
sketch14.addConstraint(Sketcher.Constraint("Vertical", 0))
sketch14.addConstraint(Sketcher.Constraint("Horizontal", 1))
sketch14.addConstraint(Sketcher.Constraint("Vertical", 2))
sketch14.addConstraint(Sketcher.Constraint("Horizontal", 3))
sketch14.addConstraint(Sketcher.Constraint("DistanceX", 1, 1, 1, 2, 33.6))
sketch14.addConstraint(Sketcher.Constraint("DistanceY", 0, 1, 0, 2, 1.8))
sketch14.addConstraint(Sketcher.Constraint("DistanceX", 0, 2, -1, 1, 2.2))
sketch14.addConstraint(Sketcher.Constraint("DistanceY", 0, 2, -1, 1, 54.4))
pocket5 = body.newObject("PartDesign::Pocket", "Pocket004")
pocket5.Profile = sketch14
pocket5.Length = 1.4
pocket5.Reversed = True

# Sketch on XY plane
sketch15 = body.newObject("Sketcher::SketchObject", "Sketch014")
sketch15.AttachmentSupport = (doc.getObject("XY_Plane"), [""])
sketch15.MapMode = "FlatFace"
add_polygon(sketch15, [(-22, -59), (-22, 6), (48, 6), (48, -59)])  # lines 0-3
add_polygon(sketch15, [(46, 4), (-20, 4), (-20, -57), (46, -57)])  # lines 4-7
sketch15.addConstraint(Sketcher.Constraint("Vertical", 0))
sketch15.addConstraint(Sketcher.Constraint("Horizontal", 1))
sketch15.addConstraint(Sketcher.Constraint("Vertical", 2))
sketch15.addConstraint(Sketcher.Constraint("Horizontal", 3))
sketch15.addConstraint(Sketcher.Constraint("Horizontal", 4))
sketch15.addConstraint(Sketcher.Constraint("Vertical", 5))
sketch15.addConstraint(Sketcher.Constraint("Horizontal", 6))
sketch15.addConstraint(Sketcher.Constraint("Vertical", 7))
sketch15.addConstraint(Sketcher.Constraint("DistanceX", 1, 1, 1, 2, 70.0))
sketch15.addConstraint(Sketcher.Constraint("DistanceX", 4, 2, 4, 1, 66.0))
sketch15.addConstraint(Sketcher.Constraint("DistanceY", 0, 1, 0, 2, 65.0))
sketch15.addConstraint(Sketcher.Constraint("DistanceY", 5, 2, 5, 1, 61.0))
sketch15.addConstraint(Sketcher.Constraint("DistanceX", 0, 2, -1, 1, 22.0))
sketch15.addConstraint(Sketcher.Constraint("DistanceY", -1, 1, 0, 2, 6.0))
sketch15.addConstraint(Sketcher.Constraint("DistanceX", 4, 2, -1, 1, 20.0))
sketch15.addConstraint(Sketcher.Constraint("DistanceY", -1, 1, 4, 2, 4.0))
pad10 = body.newObject("PartDesign::Pad", "Pad009")
pad10.Profile = sketch15
pad10.Type = "TwoLengths"
pad10.Length = 9
pad10.Length2 = 0.1
pad10.Reversed = True
doc.recompute()

fillet2 = body.newObject("PartDesign::Fillet", "Fillet001")
fillet2.Base = (pad10, edges_at(pad10, [
    (46, -26.5, 0.1),
    (13, 4, 0.1),
    (-20, -26.5, 0.1),
    (13, -57, 0.1),
]))
fillet2.Radius = 1
doc.recompute()

fillet3 = body.newObject("PartDesign::Fillet", "Fillet002")
fillet3.Base = (fillet2, edges_at(fillet2, [
    (13, 6, 0.1),
    (-22, -26.5, 0.1),
    (48, -26.5, 0.1),
    (13, -59, 0.1),
]))
fillet3.Radius = 0.99

# Sketch on XY plane
sketch16 = body.newObject("Sketcher::SketchObject", "Sketch015")
sketch16.AttachmentSupport = (doc.getObject("XY_Plane"), [""])
sketch16.MapMode = "FlatFace"
sketch16.AttachmentOffset = App.Placement(V(0, 0, -9), App.Rotation())
add_polygon(sketch16, [(-20, -57), (-20, 4), (46, 4), (46, -57)])  # lines 0-3
sketch16.addConstraint(Sketcher.Constraint("Vertical", 0))
sketch16.addConstraint(Sketcher.Constraint("Horizontal", 1))
sketch16.addConstraint(Sketcher.Constraint("Vertical", 2))
sketch16.addConstraint(Sketcher.Constraint("Horizontal", 3))
sketch16.addConstraint(Sketcher.Constraint("DistanceX", 1, 1, 1, 2, 66.4))
sketch16.addConstraint(Sketcher.Constraint("DistanceY", 0, 1, 0, 2, 61.4))
sketch16.addConstraint(Sketcher.Constraint("DistanceX", 0, 2, -1, 1, 20.2))
sketch16.addConstraint(Sketcher.Constraint("DistanceY", -1, 1, 0, 2, 4.2))
pocket6 = body.newObject("PartDesign::Pocket", "Pocket005")
pocket6.Profile = sketch16
pocket6.Length = 9
pocket6.Reversed = True

# Sketch on XY plane
sketch17 = body.newObject("Sketcher::SketchObject", "Sketch016")
sketch17.AttachmentSupport = (doc.getObject("XY_Plane"), [""])
sketch17.MapMode = "FlatFace"
sketch17.AttachmentOffset = App.Placement(V(0, 0, 11), App.Rotation())
add_polygon(sketch17, [(23.9, -49.3), (23.9, -41.3), (28.1, -41.3), (28.1, -49.3)])  # lines 0-3
sketch17.addConstraint(Sketcher.Constraint("Vertical", 0))
sketch17.addConstraint(Sketcher.Constraint("Horizontal", 1))
sketch17.addConstraint(Sketcher.Constraint("Vertical", 2))
sketch17.addConstraint(Sketcher.Constraint("Horizontal", 3))
sketch17.addConstraint(Sketcher.Constraint("DistanceY", 0, 1, 0, 2, 8.0))
sketch17.addConstraint(Sketcher.Constraint("DistanceX", 1, 1, 1, 2, 4.2))
sketch17.addConstraint(Sketcher.Constraint("DistanceY", 0, 2, -1, 1, 41.3))
sketch17.addConstraint(Sketcher.Constraint("DistanceX", -1, 1, 0, 2, 23.91))
pocket7 = body.newObject("PartDesign::Pocket", "Pocket006")
pocket7.Profile = sketch17
pocket7.Length = 5
pocket7.Reversed = True

# Sketch on XY plane
sketch18 = body.newObject("Sketcher::SketchObject", "Sketch017")
sketch18.AttachmentSupport = (doc.getObject("XY_Plane"), [""])
sketch18.MapMode = "FlatFace"
sketch18.AttachmentOffset = App.Placement(V(0, 0, 13), App.Rotation())
sketch18.addGeometry(Part.Circle(V(-2.2, -43.8, 0), V(0, 0, 1), 3), False)
sketch18.addGeometry(Part.Circle(V(28.2, -28.5, 0), V(0, 0, 1), 3), False)
sketch18.addGeometry(Part.Circle(V(-2.2, -13.2, 0), V(0, 0, 1), 3), False)
sketch18.addConstraint(Sketcher.Constraint("Equal", 0, 1))
sketch18.addConstraint(Sketcher.Constraint("Equal", 1, 2))
sketch18.addConstraint(Sketcher.Constraint("Vertical", 0, 3, 2, 3))
sketch18.addConstraint(Sketcher.Constraint("Diameter", 0, 6.0))
sketch18.addConstraint(Sketcher.Constraint("DistanceX", 0, 3, -1, 1, 2.2))
sketch18.addConstraint(Sketcher.Constraint("DistanceX", -1, 1, 1, 3, 28.2))
sketch18.addConstraint(Sketcher.Constraint("DistanceY", 1, 3, -1, 1, 28.5))
sketch18.addConstraint(Sketcher.Constraint("DistanceY", 0, 3, 2, 3, 30.5))
sketch18.addConstraint(Sketcher.Constraint("DistanceY", 0, 3, -1, 1, 43.75))
pocket8 = body.newObject("PartDesign::Pocket", "Pocket007")
pocket8.Profile = sketch18
pocket8.Length = 5

# Sketch on XY plane
sketch19 = body.newObject("Sketcher::SketchObject", "Sketch018")
sketch19.AttachmentSupport = (doc.getObject("XY_Plane"), [""])
sketch19.MapMode = "FlatFace"
sketch19.AttachmentOffset = App.Placement(V(0, 0, 8), App.Rotation())
sketch19.addGeometry(Part.Circle(V(-2.2, -43.8, 0), V(0, 0, 1), 1.6), False)
sketch19.addGeometry(Part.Circle(V(28.2, -28.5, 0), V(0, 0, 1), 1.6), False)
sketch19.addGeometry(Part.Circle(V(-2.2, -13.2, 0), V(0, 0, 1), 1.6), False)
sketch19.addConstraint(Sketcher.Constraint("Equal", 0, 1))
sketch19.addConstraint(Sketcher.Constraint("Equal", 1, 2))
sketch19.addConstraint(Sketcher.Constraint("Vertical", 0, 3, 2, 3))
sketch19.addConstraint(Sketcher.Constraint("Diameter", 0, 3.2))
sketch19.addConstraint(Sketcher.Constraint("DistanceX", 0, 3, -1, 1, 2.2))
sketch19.addConstraint(Sketcher.Constraint("DistanceX", -1, 1, 1, 3, 28.2))
sketch19.addConstraint(Sketcher.Constraint("DistanceY", 1, 3, -1, 1, 28.5))
sketch19.addConstraint(Sketcher.Constraint("DistanceY", 0, 3, 2, 3, 30.5))
sketch19.addConstraint(Sketcher.Constraint("DistanceY", 0, 3, -1, 1, 43.75))
pocket9 = body.newObject("PartDesign::Pocket", "Pocket008")
pocket9.Profile = sketch19
pocket9.Length = 5

doc.recompute()
